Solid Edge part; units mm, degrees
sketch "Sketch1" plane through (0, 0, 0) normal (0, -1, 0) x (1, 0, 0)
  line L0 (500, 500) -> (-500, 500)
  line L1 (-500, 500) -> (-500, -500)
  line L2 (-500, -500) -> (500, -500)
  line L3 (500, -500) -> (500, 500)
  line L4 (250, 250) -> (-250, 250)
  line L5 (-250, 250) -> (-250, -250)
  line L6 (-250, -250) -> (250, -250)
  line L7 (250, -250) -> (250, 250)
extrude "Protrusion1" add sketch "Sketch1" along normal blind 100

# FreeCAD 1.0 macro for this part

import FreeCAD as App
import Part
import Sketcher

V = App.Vector


def add_polygon(sketch, points):
    """Adds a closed chain of lines whose ends are joined by coincident constraints."""
    first, n = sketch.GeometryCount, len(points)
    for a, b in zip(points, points[1:] + points[:1]):
        sketch.addGeometry(Part.LineSegment(App.Vector(*a, 0), App.Vector(*b, 0)), False)
    for i in range(n):
        sketch.addConstraint(Sketcher.Constraint("Coincident", first + i, 2, first + (i + 1) % n, 1))

doc = App.newDocument("Part")
body = doc.addObject("PartDesign::Body", "Body")

# Sketch on XZ plane
sketch1 = body.newObject("Sketcher::SketchObject", "Sketch")
sketch1.AttachmentSupport = (doc.getObject("XZ_Plane"), [""])
sketch1.MapMode = "FlatFace"
add_polygon(sketch1, [(500, -500), (500, 500), (-500, 500), (-500, -500)])  # lines 0-3
add_polygon(sketch1, [(-250, 250), (250, 250), (250, -250), (-250, -250)])  # lines 4-7
sketch1.addConstraint(Sketcher.Constraint("Vertical", 0))
sketch1.addConstraint(Sketcher.Constraint("Horizontal", 1))
sketch1.addConstraint(Sketcher.Constraint("Vertical", 2))
sketch1.addConstraint(Sketcher.Constraint("Horizontal", 3))
sketch1.addConstraint(Sketcher.Constraint("Horizontal", 4))
sketch1.addConstraint(Sketcher.Constraint("Vertical", 5))
sketch1.addConstraint(Sketcher.Constraint("Horizontal", 6))
sketch1.addConstraint(Sketcher.Constraint("Vertical", 7))
sketch1.addConstraint(Sketcher.Constraint("Symmetric", 0, 2, 2, 2, -1, 1))
sketch1.addConstraint(Sketcher.Constraint("Symmetric", 4, 2, 6, 2, -1, 1))
sketch1.addConstraint(Sketcher.Constraint("Equal", 3, 0))
sketch1.addConstraint(Sketcher.Constraint("Equal", 6, 5))
sketch1.addConstraint(Sketcher.Constraint("DistanceX", 1, 2, 1, 1, 1000.0))
sketch1.addConstraint(Sketcher.Constraint("DistanceX", 4, 1, 4, 2, 500.0))
pad1 = body.newObject("PartDesign::Pad", "Pad")
pad1.Profile = sketch1
pad1.Length = 100

doc.recompute()
